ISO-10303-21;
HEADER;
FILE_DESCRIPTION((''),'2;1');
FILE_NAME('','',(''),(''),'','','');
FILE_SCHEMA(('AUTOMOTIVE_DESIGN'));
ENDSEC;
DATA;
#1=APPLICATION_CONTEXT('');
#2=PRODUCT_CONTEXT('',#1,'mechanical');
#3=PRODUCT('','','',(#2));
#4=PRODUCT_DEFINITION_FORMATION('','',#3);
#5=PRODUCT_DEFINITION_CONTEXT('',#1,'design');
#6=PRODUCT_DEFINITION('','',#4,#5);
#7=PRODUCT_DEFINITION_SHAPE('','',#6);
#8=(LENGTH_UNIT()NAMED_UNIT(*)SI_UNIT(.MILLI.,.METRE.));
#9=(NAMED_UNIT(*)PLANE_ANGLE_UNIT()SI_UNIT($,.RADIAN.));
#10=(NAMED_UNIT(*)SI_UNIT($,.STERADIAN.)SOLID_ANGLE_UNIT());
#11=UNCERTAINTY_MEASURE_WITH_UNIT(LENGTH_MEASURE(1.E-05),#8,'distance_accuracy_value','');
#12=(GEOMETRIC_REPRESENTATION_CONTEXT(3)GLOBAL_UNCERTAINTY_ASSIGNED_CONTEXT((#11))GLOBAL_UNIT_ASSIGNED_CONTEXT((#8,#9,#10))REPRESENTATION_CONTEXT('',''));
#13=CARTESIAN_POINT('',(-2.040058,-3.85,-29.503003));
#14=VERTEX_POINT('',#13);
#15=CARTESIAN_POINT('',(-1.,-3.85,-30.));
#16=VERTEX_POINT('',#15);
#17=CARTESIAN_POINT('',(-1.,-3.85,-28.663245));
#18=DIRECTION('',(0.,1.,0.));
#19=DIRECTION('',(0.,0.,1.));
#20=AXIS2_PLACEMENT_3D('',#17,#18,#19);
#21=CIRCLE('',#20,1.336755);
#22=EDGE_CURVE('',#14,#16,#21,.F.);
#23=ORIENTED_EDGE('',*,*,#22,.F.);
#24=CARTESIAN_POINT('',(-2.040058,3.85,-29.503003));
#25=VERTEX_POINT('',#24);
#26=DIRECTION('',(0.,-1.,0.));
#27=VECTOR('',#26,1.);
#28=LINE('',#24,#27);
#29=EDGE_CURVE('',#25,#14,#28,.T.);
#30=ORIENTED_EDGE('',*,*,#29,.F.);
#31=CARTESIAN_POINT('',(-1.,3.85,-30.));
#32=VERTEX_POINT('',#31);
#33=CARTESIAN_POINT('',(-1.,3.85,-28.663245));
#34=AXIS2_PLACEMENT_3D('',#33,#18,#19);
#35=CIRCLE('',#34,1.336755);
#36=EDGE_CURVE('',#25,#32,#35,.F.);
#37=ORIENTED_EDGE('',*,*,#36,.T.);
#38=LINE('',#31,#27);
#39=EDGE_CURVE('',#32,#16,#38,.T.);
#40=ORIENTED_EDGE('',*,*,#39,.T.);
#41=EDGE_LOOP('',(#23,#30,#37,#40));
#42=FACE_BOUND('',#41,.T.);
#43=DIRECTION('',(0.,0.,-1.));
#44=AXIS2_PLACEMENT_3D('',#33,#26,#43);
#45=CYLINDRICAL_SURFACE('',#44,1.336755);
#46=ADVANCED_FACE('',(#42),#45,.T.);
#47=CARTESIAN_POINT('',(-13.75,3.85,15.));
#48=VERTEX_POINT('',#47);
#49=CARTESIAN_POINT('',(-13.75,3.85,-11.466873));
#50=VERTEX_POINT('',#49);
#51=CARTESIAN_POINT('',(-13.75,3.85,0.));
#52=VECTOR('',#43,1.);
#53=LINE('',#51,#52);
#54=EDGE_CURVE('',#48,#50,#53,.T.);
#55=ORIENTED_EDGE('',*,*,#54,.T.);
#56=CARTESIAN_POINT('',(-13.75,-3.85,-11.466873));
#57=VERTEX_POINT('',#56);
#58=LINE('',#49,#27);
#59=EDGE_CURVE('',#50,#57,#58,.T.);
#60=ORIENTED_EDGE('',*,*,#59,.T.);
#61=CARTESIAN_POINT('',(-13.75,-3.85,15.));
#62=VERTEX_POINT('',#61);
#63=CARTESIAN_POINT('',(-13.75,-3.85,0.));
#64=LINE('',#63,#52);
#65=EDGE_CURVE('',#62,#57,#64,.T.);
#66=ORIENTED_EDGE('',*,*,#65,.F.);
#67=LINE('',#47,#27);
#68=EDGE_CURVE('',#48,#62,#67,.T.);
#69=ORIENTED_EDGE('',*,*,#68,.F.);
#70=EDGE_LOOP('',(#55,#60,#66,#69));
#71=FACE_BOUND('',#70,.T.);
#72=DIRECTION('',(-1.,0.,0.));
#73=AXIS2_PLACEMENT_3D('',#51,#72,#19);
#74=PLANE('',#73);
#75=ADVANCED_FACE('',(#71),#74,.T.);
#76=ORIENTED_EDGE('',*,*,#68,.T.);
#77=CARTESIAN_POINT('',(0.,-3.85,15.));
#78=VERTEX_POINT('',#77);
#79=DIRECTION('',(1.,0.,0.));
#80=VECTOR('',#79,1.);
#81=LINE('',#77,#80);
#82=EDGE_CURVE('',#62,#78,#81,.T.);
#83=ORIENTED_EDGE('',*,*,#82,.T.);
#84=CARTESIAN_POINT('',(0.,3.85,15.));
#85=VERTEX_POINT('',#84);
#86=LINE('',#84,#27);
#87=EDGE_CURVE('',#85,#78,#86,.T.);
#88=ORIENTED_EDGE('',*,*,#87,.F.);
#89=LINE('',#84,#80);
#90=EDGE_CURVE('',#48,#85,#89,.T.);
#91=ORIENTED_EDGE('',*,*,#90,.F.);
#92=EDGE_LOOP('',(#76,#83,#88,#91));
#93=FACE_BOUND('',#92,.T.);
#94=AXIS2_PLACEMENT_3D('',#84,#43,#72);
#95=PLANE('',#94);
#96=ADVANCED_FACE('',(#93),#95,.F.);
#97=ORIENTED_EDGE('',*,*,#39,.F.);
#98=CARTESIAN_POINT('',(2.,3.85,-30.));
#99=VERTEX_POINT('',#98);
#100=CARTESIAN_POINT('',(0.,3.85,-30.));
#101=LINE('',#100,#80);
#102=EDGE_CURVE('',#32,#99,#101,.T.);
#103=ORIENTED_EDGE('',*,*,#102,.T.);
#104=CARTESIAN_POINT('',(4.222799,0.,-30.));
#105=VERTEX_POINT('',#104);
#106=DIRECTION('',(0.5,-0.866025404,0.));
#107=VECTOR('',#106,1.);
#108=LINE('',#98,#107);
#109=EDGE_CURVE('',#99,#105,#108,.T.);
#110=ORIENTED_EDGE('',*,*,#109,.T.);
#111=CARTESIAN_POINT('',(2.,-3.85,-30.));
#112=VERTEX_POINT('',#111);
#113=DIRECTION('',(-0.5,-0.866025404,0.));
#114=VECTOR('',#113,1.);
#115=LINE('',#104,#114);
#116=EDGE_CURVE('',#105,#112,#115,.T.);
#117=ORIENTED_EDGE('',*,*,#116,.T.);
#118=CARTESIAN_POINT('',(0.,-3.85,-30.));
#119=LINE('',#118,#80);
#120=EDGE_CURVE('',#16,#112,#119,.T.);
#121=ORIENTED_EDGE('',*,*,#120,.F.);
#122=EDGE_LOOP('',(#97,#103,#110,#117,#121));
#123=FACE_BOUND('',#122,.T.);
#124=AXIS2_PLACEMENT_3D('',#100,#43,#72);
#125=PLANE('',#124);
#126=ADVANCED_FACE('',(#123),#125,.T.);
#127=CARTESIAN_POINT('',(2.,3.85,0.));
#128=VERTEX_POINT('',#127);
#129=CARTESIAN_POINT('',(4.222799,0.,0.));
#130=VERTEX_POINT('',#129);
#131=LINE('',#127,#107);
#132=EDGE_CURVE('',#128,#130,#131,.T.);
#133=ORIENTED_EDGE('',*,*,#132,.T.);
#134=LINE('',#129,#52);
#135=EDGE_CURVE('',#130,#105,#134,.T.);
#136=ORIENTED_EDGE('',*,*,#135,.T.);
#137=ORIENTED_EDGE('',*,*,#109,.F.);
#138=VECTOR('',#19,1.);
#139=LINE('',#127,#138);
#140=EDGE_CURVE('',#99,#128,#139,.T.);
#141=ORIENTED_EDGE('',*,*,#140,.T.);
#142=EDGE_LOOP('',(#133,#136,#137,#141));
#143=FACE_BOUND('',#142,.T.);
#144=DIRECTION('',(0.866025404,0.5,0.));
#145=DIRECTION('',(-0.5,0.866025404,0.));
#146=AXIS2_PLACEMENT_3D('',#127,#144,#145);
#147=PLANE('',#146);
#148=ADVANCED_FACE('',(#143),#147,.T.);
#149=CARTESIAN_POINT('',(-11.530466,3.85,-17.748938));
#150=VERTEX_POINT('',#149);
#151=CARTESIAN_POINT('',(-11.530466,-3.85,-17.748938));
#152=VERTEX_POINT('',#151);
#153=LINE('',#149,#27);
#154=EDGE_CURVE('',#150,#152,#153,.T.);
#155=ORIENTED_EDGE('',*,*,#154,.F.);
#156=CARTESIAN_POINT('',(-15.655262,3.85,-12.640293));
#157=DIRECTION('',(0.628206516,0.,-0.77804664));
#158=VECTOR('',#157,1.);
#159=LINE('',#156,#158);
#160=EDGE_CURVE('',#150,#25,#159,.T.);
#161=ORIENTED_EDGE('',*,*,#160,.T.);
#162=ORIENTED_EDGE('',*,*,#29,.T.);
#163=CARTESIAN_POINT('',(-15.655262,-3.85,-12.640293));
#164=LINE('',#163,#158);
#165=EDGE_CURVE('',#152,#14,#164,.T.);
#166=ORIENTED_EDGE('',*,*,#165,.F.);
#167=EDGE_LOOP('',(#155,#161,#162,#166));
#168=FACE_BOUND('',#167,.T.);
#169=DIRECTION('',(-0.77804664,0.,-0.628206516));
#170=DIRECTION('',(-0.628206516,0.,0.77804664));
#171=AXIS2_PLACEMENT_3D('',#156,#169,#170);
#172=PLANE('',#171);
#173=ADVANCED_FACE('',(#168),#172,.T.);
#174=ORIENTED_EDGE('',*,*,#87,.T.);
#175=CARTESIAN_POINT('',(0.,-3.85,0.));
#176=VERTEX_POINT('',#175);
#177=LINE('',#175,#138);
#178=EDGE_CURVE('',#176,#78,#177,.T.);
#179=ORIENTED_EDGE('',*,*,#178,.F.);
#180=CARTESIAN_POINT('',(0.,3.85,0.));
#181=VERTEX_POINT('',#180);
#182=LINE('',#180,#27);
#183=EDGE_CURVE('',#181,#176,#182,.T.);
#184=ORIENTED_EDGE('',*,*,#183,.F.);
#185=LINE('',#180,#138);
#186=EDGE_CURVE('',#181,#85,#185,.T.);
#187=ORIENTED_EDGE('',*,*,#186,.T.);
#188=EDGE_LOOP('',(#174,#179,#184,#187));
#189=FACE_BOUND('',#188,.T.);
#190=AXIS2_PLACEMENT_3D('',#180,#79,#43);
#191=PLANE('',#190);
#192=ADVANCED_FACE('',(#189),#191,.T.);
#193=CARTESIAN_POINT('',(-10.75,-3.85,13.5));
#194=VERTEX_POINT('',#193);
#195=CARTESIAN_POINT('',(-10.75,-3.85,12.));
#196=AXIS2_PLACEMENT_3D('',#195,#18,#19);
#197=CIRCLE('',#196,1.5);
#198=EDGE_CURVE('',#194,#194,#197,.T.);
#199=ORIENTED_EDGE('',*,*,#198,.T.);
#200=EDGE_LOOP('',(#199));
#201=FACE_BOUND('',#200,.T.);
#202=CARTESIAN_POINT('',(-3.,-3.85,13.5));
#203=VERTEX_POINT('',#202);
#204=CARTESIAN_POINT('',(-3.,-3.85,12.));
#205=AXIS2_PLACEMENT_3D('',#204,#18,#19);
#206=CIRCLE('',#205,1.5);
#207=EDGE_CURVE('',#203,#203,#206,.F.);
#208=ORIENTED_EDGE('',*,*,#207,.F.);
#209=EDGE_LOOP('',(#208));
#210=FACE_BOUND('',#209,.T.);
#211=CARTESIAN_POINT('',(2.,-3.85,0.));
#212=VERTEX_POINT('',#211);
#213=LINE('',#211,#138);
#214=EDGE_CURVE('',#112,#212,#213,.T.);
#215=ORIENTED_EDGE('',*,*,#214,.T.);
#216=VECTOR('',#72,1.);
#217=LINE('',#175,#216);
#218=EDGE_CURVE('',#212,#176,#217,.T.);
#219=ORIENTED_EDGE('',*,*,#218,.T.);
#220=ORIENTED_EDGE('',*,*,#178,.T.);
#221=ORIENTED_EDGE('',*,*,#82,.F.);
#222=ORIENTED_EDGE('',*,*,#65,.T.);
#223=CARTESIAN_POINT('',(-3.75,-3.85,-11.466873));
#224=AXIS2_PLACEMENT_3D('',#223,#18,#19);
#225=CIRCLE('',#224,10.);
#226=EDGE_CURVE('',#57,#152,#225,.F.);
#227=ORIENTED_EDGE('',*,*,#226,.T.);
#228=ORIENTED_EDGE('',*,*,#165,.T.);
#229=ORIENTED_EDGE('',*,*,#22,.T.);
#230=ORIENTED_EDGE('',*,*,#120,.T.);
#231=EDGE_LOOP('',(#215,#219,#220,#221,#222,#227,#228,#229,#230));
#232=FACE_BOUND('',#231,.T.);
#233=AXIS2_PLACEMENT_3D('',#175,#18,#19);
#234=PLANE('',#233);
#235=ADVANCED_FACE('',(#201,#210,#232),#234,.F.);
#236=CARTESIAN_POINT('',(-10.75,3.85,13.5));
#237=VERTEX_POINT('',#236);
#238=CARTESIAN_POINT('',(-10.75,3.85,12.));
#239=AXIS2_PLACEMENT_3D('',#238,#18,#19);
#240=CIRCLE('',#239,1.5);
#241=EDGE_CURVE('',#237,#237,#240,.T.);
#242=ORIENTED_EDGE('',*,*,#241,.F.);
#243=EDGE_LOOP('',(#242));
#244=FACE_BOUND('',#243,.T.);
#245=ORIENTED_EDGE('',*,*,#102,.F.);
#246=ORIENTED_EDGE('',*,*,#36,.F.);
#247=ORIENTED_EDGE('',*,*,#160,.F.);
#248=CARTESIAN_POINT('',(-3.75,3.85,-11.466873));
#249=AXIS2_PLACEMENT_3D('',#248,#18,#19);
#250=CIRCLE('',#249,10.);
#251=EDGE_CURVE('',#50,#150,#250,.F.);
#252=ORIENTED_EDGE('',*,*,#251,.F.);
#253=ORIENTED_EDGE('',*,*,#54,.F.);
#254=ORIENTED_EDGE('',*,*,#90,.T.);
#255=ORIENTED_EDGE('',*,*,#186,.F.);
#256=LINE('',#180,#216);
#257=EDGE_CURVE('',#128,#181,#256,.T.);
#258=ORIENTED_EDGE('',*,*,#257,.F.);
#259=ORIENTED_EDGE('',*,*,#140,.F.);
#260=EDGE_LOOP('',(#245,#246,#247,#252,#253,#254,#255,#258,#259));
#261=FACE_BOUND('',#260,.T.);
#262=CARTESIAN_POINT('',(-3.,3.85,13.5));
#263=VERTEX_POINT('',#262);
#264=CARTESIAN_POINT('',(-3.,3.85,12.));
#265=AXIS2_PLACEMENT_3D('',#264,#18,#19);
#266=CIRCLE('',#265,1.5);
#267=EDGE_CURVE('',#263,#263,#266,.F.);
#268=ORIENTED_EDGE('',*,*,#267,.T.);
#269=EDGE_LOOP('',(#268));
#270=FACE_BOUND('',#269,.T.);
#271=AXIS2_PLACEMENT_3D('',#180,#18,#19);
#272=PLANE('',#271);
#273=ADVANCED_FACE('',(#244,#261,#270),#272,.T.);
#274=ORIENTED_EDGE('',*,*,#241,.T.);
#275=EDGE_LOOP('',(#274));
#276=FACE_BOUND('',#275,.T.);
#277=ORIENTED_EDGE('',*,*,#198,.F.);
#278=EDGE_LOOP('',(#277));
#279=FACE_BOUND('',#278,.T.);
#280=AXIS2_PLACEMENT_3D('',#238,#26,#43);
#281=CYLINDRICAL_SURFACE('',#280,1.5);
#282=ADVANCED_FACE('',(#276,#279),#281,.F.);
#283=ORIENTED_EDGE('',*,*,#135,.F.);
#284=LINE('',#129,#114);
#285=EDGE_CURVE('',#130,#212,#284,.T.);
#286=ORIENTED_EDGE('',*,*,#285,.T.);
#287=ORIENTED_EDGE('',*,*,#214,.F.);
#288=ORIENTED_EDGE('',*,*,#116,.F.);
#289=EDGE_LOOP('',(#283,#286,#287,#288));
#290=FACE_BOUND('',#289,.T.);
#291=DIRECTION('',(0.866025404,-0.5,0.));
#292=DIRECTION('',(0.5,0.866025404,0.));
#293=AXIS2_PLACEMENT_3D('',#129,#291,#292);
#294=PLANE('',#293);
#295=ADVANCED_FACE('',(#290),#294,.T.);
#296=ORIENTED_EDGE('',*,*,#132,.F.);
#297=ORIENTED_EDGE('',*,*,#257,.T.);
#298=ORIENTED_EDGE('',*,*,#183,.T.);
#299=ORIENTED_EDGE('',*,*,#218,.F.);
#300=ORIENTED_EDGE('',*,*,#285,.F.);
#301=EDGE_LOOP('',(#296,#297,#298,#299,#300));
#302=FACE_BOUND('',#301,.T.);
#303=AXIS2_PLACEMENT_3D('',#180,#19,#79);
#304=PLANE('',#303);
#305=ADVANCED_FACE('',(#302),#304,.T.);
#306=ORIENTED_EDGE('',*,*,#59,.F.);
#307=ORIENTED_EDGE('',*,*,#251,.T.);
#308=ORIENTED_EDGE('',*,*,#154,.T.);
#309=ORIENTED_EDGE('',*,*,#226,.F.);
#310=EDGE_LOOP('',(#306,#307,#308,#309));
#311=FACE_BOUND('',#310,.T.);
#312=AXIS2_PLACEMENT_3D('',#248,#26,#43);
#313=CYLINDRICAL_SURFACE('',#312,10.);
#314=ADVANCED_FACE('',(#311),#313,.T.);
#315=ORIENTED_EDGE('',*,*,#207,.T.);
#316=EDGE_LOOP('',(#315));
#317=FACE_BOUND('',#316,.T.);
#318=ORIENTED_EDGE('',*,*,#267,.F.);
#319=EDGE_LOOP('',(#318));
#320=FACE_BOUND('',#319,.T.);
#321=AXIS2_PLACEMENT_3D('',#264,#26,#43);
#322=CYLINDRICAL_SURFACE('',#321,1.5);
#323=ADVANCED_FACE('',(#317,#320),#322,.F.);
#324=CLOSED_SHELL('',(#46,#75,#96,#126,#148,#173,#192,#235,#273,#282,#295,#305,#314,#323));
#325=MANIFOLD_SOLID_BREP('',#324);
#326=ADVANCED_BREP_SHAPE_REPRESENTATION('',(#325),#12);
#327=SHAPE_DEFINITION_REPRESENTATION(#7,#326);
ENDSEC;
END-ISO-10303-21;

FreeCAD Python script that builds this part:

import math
import FreeCAD as App
import Part
import Sketcher
Q = App.Units.Quantity


def add_polygon(sketch, points):
    """Adds a closed chain of lines whose ends are joined by coincident constraints."""
    first, n = sketch.GeometryCount, len(points)
    for a, b in zip(points, points[1:] + points[:1]):
        sketch.addGeometry(Part.LineSegment(App.Vector(*a, 0), App.Vector(*b, 0)), False)
    for i in range(n):
        sketch.addConstraint(Sketcher.Constraint("Coincident", first + i, 2, first + (i + 1) % n, 1))

doc = App.newDocument("Part")
body = doc.addObject("PartDesign::Body", "Body")

sketch1 = doc.addObject("Sketcher::SketchObject", "Sketch")
body.addObject(sketch1)
sketch1.AttachmentSupport = (doc.XZ_Plane, [""])
sketch1.MapMode = "FlatFace"
sketch1.addGeometry(Part.LineSegment(App.Vector(-13.8, 15, 0), App.Vector(0, 15, 0)), False)
sketch1.addGeometry(Part.LineSegment(App.Vector(0, 15, 0), App.Vector(0, 0, 0)), False)
sketch1.addGeometry(Part.LineSegment(App.Vector(0, 0, 0), App.Vector(2, 0, 0)), False)
sketch1.addGeometry(Part.LineSegment(App.Vector(2, 0, 0), App.Vector(2, -30, 0)), False)
sketch1.addGeometry(Part.LineSegment(App.Vector(2, -30, 0), App.Vector(-1, -30, 0)), False)
sketch1.addGeometry(Part.ArcOfCircle(Part.Circle(App.Vector(-1, -28.7, 0), App.Vector(0, 0, 1), 1.3), math.radians(-141), math.radians(-90)), False)
sketch1.addGeometry(Part.LineSegment(App.Vector(-2, -29.5, 0), App.Vector(-11.5, -17.7, 0)), False)
sketch1.addGeometry(Part.ArcOfCircle(Part.Circle(App.Vector(-3.7, -11.5, 0), App.Vector(0, 0, 1), 10), math.radians(180), math.radians(219)), False)
sketch1.addGeometry(Part.LineSegment(App.Vector(-13.8, -11.5, 0), App.Vector(-13.8, 15, 0)), False)
sketch1.addGeometry(Part.Circle(App.Vector(-10.8, 12, 0), App.Vector(0, 0, 1), 1.5), False)
sketch1.addGeometry(Part.Circle(App.Vector(-3, 12, 0), App.Vector(0, 0, 1), 1.5), False)
sketch1.addConstraint(Sketcher.Constraint("Coincident", 0, 2, 1, 1))
sketch1.addConstraint(Sketcher.Constraint("Coincident", 1, 2, 2, 1))
sketch1.addConstraint(Sketcher.Constraint("Coincident", 2, 2, 3, 1))
sketch1.addConstraint(Sketcher.Constraint("Coincident", 3, 2, 4, 1))
sketch1.addConstraint(Sketcher.Constraint("Tangent", 4, 2, 5, 2))
sketch1.addConstraint(Sketcher.Constraint("Tangent", 5, 1, 6, 1))
sketch1.addConstraint(Sketcher.Constraint("Tangent", 6, 2, 7, 2))
sketch1.addConstraint(Sketcher.Constraint("Tangent", 7, 1, 8, 1))
sketch1.addConstraint(Sketcher.Constraint("Coincident", 8, 2, 0, 1))
sketch1.addConstraint(Sketcher.Constraint("Horizontal", 0))
sketch1.addConstraint(Sketcher.Constraint("Vertical", 1))
sketch1.addConstraint(Sketcher.Constraint("Horizontal", 2))
sketch1.addConstraint(Sketcher.Constraint("Vertical", 3))
sketch1.addConstraint(Sketcher.Constraint("Horizontal", 4))
sketch1.addConstraint(Sketcher.Constraint("Vertical", 8))
sketch1.addConstraint(Sketcher.Constraint("Coincident", 1, 2, -1, 1))
sketch1.addConstraint(Sketcher.Constraint("Equal", 9, 10))
sketch1.addConstraint(Sketcher.Constraint("Horizontal", 9, 3, 10, 3))
sketch1.addConstraint(Sketcher.Constraint("Diameter", 9, 3.0))
sketch1.addConstraint(Sketcher.Constraint("Radius", 7, 10.0))
sketch1.addConstraint(Sketcher.Constraint("DistanceX", 2, 1, 2, 2, 2.0))
sketch1.addConstraint(Sketcher.Constraint("DistanceX", 4, 2, 4, 1, 3.0))
sketch1.addConstraint(Sketcher.Constraint("DistanceY", 1, 2, 1, 1, 15.0))
sketch1.addConstraint(Sketcher.Constraint("DistanceY", 3, 2, 3, 1, 30.0))
sketch1.addConstraint(Sketcher.Constraint("DistanceY", -1, 1, 9, 3, 12.0))
sketch1.addConstraint(Sketcher.Constraint("DistanceX", 10, 3, -1, 1, 3.0))
sketch1.addConstraint(Sketcher.Constraint("DistanceX", 9, 3, 7, 3, 7.0))
sketch1.addConstraint(Sketcher.Constraint("DistanceX", 0, 1, 0, 2, 13.75))
sketch1.addConstraint(Sketcher.Constraint("Radius", 5, 1.336755))
sketch1.addConstraint(Sketcher.Constraint("DistanceY", 8, 1, 8, 2, 26.466873))
pad1 = doc.addObject("PartDesign::Pad", "Pad")
body.addObject(pad1)
pad1.Profile = sketch1
pad1.Length = 7.7
pad1.Midplane = True

sketch2 = doc.addObject("Sketcher::SketchObject", "Sketch001")
body.addObject(sketch2)
sketch2.AttachmentSupport = (doc.XY_Plane, [""])
sketch2.MapMode = "FlatFace"
sketch2.AttachmentOffset = App.Placement(App.Vector(0, 0, -30), App.Rotation())
add_polygon(sketch2, [(2, 3.9), (4.2, 0), (2, -3.9)])
sketch2.addConstraint(Sketcher.Constraint("Vertical", 2))
sketch2.addConstraint(Sketcher.Constraint("PointOnObject", 0, 2, -1))
sketch2.addConstraint(Sketcher.Constraint("Equal", 0, 1))
sketch2.addConstraint(Sketcher.Constraint("Angle", 0, Q("-60 deg")))
sketch2.addConstraint(Sketcher.Constraint("DistanceY", 2, 1, 2, 2, 7.7))
sketch2.addConstraint(Sketcher.Constraint("DistanceX", -1, 1, 1, 2, 2.0))
pad2 = doc.addObject("PartDesign::Pad", "Pad001")
body.addObject(pad2)
pad2.Profile = sketch2
pad2.Length = 30

doc.recompute()
